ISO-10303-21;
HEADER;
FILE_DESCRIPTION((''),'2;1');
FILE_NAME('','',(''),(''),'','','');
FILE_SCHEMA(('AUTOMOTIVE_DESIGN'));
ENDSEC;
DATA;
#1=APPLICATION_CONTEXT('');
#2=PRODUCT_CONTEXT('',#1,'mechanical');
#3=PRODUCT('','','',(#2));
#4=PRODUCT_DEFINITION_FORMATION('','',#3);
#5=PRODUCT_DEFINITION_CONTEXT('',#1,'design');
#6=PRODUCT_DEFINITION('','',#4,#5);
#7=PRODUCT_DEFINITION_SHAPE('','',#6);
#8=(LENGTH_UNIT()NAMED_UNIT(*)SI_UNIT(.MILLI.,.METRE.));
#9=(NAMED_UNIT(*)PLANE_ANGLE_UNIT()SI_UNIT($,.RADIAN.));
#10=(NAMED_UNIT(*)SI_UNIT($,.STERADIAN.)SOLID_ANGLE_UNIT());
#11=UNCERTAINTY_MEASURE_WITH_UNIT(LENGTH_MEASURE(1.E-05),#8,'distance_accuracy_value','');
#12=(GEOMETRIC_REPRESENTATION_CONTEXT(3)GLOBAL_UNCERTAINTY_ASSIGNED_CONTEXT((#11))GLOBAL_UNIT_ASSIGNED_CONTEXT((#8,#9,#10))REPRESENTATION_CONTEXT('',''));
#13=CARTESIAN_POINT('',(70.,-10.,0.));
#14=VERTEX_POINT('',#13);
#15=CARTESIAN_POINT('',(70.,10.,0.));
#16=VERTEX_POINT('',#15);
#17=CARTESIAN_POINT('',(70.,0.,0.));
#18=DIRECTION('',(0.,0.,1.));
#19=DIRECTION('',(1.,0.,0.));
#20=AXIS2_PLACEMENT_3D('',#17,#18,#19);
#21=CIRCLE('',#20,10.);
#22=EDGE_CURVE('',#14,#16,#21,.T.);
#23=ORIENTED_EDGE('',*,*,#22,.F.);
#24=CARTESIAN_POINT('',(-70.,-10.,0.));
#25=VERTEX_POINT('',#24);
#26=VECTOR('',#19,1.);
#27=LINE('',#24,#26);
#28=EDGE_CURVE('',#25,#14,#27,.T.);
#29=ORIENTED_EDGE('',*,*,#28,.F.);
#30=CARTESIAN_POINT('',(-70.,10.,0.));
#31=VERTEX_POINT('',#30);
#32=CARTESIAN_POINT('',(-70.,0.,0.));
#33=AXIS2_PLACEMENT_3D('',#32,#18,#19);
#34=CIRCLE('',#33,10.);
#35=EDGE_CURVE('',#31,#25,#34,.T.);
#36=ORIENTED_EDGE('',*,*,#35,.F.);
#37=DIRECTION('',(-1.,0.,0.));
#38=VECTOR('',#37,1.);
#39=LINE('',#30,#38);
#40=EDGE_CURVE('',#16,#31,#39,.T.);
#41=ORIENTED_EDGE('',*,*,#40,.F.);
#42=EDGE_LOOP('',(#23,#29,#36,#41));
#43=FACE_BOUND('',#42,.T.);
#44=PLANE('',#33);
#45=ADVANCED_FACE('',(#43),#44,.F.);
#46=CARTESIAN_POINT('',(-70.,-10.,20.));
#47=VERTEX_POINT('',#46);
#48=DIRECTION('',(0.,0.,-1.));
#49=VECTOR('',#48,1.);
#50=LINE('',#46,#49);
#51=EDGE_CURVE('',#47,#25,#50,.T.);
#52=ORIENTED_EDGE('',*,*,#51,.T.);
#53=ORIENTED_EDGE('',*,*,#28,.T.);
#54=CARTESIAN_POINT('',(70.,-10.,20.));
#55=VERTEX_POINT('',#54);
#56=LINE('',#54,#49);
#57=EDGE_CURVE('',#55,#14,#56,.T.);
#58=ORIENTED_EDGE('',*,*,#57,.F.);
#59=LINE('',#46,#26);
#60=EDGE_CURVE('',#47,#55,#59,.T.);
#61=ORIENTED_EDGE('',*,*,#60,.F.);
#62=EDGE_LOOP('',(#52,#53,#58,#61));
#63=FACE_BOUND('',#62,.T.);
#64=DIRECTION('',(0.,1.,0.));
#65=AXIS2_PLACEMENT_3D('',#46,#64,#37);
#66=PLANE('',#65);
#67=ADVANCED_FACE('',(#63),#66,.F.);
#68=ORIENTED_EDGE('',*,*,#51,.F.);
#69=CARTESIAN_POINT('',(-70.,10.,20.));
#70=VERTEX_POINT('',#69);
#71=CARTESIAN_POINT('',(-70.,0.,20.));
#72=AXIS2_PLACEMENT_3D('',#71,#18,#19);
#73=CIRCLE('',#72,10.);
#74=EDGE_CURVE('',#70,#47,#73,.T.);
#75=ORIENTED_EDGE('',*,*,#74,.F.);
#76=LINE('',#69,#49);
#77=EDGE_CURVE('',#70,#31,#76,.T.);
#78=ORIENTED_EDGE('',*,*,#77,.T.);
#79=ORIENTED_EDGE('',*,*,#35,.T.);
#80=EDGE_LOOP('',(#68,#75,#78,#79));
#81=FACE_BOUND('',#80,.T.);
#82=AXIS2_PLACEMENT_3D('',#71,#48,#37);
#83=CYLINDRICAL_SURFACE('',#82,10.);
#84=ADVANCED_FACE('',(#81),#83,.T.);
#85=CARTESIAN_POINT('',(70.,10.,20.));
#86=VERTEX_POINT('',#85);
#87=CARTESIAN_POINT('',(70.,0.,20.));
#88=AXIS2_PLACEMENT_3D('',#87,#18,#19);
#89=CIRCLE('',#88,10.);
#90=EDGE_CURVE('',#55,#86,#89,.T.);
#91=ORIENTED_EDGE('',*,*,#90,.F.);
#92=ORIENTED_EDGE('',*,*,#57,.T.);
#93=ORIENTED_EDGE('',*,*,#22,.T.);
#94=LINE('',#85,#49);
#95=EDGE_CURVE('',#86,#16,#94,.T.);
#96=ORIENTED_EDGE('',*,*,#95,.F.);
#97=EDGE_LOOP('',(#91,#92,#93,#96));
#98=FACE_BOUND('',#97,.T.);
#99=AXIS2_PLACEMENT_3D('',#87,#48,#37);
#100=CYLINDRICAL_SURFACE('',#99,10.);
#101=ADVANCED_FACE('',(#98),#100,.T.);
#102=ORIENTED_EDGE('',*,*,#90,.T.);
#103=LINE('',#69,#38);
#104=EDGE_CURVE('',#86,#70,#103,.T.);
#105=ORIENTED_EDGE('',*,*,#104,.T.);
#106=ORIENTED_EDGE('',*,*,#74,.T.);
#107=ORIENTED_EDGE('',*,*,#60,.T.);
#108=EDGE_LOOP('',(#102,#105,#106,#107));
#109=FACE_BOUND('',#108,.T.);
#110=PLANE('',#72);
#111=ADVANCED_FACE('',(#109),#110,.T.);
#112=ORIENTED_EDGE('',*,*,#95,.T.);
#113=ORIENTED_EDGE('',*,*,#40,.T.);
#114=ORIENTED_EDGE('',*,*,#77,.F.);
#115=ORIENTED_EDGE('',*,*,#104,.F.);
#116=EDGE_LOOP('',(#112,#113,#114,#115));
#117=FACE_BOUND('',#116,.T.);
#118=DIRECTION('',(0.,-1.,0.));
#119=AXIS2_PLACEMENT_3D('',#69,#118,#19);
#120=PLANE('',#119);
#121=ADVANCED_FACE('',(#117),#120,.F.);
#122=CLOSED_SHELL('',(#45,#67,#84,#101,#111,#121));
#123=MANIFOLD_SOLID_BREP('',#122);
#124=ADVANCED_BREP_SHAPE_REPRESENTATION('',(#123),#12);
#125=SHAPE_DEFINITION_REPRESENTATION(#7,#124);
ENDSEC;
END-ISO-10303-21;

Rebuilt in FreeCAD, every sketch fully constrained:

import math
import FreeCAD as App
import Part
import Sketcher

doc = App.newDocument("Part")
body = doc.addObject("PartDesign::Body", "Body")

sketch1 = body.newObject("Sketcher::SketchObject", "Sketch")
sketch1.AttachmentSupport = (doc.getObject("XY_Plane"), [""])
sketch1.MapMode = "FlatFace"
sketch1.addGeometry([
    Part.LineSegment(App.Vector(70, 10, 0), App.Vector(-70, 10, 0)),
    Part.ArcOfCircle(Part.Circle(App.Vector(-70, 0, 0), App.Vector(0, 0, 1), 10), math.radians(90), math.radians(270)),
    Part.LineSegment(App.Vector(-70, -10, 0), App.Vector(70, -10, 0)),
    Part.ArcOfCircle(Part.Circle(App.Vector(70, 0, 0), App.Vector(0, 0, 1), 10), math.radians(-90), math.radians(90)),
], False)
sketch1.addConstraint([
    Sketcher.Constraint("Tangent", 0, 2, 1, 1),
    Sketcher.Constraint("Tangent", 1, 2, 2, 1),
    Sketcher.Constraint("Tangent", 2, 2, 3, 1),
    Sketcher.Constraint("Tangent", 3, 2, 0, 1),
    Sketcher.Constraint("Horizontal", 0),
    Sketcher.Constraint("Horizontal", 2),
    Sketcher.Constraint("Symmetric", 1, 3, 3, 3, -1, 1),
    Sketcher.Constraint("Radius", 1, 10.0),
    Sketcher.Constraint("DistanceX", 0, 2, 0, 1, 140.0),
])
pad1 = body.newObject("PartDesign::Pad", "Pad")
pad1.Profile = sketch1
pad1.Length = 20

doc.recompute()
